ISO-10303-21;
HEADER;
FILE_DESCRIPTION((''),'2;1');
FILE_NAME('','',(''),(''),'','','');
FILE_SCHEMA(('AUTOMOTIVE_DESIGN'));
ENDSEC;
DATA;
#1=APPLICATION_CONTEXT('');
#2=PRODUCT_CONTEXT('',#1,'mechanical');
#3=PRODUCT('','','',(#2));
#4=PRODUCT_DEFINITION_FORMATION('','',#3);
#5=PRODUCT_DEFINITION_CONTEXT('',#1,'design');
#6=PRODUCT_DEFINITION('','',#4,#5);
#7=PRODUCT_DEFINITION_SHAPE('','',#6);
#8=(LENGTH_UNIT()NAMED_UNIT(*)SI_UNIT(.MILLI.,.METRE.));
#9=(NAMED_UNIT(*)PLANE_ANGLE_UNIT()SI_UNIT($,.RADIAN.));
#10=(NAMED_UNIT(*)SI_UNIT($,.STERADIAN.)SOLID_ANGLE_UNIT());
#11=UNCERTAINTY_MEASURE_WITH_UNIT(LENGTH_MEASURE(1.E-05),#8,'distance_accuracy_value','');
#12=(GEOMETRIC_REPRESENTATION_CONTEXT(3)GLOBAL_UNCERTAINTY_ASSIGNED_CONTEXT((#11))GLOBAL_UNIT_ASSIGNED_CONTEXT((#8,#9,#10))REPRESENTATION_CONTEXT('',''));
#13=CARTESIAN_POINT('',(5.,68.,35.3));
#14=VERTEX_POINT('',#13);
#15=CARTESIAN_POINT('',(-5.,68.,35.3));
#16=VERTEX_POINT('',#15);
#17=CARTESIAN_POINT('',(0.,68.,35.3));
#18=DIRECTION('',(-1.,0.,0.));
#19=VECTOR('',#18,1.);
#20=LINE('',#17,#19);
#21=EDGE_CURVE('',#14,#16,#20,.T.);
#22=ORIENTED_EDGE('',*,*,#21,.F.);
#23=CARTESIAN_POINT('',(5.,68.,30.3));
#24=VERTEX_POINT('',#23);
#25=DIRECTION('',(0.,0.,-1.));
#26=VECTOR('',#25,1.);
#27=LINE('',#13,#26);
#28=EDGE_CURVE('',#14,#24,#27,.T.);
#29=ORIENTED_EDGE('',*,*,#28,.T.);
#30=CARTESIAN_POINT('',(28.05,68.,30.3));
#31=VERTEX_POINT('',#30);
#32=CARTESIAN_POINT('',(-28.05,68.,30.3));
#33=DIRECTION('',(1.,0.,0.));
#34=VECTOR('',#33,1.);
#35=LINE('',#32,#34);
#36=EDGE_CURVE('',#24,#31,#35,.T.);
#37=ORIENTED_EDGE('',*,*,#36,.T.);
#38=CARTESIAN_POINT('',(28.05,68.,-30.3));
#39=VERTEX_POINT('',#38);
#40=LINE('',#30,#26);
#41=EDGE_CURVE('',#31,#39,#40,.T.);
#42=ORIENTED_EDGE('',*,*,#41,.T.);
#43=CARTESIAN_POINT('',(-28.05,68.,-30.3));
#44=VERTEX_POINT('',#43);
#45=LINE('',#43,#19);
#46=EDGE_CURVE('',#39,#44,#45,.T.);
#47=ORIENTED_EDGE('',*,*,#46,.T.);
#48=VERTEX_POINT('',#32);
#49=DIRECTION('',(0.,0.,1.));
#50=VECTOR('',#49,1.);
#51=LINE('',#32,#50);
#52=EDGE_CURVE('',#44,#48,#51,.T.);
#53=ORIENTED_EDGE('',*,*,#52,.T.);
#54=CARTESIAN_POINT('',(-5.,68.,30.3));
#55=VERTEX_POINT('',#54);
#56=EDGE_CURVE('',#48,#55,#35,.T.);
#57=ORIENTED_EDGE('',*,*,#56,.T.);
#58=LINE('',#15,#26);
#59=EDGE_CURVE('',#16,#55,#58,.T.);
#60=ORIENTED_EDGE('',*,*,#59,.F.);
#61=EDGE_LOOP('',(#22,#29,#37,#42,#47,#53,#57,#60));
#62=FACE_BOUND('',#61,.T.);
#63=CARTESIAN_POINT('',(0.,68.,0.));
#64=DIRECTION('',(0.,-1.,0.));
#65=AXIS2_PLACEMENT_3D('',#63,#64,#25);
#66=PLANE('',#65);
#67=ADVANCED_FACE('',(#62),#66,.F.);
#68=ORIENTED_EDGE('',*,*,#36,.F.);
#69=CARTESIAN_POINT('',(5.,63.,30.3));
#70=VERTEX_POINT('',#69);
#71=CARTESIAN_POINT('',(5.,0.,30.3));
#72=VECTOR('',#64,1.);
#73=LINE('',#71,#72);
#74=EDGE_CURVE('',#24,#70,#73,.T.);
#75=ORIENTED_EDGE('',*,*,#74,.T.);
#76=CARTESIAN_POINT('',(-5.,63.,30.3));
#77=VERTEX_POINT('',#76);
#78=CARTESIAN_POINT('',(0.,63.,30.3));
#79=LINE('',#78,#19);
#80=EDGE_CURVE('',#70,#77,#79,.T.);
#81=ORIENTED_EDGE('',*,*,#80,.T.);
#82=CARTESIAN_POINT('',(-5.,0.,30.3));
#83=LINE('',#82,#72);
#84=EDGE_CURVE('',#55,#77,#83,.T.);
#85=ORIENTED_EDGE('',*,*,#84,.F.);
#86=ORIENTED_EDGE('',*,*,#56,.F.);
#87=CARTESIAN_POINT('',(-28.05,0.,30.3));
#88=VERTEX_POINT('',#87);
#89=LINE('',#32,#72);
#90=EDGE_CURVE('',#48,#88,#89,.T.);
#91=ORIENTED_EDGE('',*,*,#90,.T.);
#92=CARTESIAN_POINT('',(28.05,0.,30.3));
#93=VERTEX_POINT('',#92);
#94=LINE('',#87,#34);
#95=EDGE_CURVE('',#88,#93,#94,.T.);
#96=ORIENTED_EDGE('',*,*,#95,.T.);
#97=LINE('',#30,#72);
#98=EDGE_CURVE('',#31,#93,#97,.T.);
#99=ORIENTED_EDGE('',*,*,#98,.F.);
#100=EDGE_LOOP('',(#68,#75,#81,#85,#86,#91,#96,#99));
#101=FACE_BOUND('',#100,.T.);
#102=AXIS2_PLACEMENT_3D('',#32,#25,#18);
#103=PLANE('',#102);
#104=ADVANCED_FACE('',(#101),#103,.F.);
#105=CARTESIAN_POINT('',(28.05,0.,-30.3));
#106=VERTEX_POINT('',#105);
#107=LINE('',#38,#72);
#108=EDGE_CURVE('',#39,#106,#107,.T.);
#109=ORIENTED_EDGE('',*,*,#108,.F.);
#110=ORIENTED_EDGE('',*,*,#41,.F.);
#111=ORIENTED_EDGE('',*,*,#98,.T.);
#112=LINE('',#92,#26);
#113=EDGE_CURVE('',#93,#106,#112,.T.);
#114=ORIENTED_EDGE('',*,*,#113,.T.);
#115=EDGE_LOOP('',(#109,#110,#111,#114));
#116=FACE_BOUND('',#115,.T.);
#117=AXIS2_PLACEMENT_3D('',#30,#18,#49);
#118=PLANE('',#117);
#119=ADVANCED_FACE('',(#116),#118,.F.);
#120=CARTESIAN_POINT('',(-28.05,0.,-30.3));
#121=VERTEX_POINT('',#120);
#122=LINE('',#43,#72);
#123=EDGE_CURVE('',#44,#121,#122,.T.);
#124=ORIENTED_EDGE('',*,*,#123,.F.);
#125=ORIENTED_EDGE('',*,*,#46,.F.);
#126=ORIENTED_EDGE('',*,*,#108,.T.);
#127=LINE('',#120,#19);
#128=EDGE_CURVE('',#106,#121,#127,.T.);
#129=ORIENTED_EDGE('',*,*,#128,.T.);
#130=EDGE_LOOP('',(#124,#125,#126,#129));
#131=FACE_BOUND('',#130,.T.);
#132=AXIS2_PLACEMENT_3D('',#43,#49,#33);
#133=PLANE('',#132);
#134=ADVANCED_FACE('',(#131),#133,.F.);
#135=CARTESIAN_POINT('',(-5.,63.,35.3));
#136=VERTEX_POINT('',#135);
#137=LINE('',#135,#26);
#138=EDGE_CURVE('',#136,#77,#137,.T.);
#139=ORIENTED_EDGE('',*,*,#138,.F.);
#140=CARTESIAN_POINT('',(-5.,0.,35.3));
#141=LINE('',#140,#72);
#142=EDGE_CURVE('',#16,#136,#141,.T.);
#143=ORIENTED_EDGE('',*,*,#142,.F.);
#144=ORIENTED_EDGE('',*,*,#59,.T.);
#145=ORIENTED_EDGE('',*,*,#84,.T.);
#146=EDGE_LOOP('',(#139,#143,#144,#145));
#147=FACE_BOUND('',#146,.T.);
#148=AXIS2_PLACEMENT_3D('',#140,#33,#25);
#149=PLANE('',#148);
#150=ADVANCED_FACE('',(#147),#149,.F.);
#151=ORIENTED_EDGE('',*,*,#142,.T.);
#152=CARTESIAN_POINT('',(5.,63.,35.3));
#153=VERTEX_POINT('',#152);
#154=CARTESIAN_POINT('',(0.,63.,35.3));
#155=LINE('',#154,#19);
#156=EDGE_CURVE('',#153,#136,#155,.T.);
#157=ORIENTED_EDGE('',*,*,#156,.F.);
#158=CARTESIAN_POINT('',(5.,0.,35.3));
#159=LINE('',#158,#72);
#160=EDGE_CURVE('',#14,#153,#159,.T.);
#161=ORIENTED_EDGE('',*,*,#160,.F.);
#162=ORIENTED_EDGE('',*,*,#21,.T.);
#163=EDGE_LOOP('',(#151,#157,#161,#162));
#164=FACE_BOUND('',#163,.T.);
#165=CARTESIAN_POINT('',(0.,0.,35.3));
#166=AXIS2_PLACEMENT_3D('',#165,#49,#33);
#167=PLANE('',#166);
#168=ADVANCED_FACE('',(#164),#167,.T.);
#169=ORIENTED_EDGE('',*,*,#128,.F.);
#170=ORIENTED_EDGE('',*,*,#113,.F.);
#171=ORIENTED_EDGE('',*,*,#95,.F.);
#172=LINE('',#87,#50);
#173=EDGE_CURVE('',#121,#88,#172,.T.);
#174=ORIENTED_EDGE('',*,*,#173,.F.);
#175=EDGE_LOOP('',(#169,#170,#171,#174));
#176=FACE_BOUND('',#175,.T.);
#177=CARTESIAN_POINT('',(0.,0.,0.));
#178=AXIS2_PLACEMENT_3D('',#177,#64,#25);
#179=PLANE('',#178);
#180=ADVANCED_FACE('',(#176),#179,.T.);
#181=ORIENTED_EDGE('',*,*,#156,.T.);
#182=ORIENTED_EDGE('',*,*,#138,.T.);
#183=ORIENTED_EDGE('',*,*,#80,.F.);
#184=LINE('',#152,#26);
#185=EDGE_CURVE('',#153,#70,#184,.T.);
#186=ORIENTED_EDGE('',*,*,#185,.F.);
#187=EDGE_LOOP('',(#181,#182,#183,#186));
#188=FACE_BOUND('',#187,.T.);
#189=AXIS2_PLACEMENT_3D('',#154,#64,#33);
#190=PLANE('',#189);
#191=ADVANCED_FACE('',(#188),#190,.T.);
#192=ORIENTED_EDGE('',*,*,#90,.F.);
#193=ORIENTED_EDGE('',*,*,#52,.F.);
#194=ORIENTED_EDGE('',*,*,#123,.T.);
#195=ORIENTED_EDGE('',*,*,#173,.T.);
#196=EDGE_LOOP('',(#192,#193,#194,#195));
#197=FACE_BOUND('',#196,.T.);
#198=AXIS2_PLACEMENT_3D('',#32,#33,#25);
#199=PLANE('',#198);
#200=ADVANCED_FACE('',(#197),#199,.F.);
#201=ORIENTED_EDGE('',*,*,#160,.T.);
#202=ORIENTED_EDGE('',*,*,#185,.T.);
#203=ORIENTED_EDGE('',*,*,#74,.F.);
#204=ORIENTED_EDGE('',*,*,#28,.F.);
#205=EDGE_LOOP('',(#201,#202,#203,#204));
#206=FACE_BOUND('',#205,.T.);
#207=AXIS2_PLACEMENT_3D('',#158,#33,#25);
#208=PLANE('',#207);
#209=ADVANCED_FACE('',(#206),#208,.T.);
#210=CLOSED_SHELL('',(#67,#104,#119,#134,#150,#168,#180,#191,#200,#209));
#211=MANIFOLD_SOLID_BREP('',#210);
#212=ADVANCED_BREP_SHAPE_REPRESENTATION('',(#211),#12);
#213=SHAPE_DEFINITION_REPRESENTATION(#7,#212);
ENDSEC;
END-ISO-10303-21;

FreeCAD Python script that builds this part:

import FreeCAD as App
import Part
import Sketcher

V = App.Vector


def add_polygon(sketch, points):
    """Adds a closed chain of lines whose ends are joined by coincident constraints."""
    first, n = sketch.GeometryCount, len(points)
    for a, b in zip(points, points[1:] + points[:1]):
        sketch.addGeometry(Part.LineSegment(App.Vector(*a, 0), App.Vector(*b, 0)), False)
    for i in range(n):
        sketch.addConstraint(Sketcher.Constraint("Coincident", first + i, 2, first + (i + 1) % n, 1))

doc = App.newDocument("Part")
body = doc.addObject("PartDesign::Body", "Body")

# Sketch on XZ plane
sketch1 = body.newObject("Sketcher::SketchObject", "Sketch")
sketch1.AttachmentSupport = (doc.getObject("XZ_Plane"), [""])
sketch1.MapMode = "FlatFace"
add_polygon(sketch1, [(-28.05, -30.3), (-28.05, 30.3), (28.05, 30.3), (28.05, -30.3)])  # lines 0-3
sketch1.addConstraint([
    Sketcher.Constraint("Vertical", 0),
    Sketcher.Constraint("Horizontal", 1),
    Sketcher.Constraint("Vertical", 2),
    Sketcher.Constraint("Horizontal", 3),
    Sketcher.Constraint("Symmetric", 0, 2, 2, 2, -1, 1),
    Sketcher.Constraint("DistanceX", 1, 1, 1, 2, 56.1),
    Sketcher.Constraint("DistanceY", 0, 1, 0, 2, 60.6),
])
pad1 = body.newObject("PartDesign::Pad", "Pad")
pad1.Profile = sketch1
pad1.Length = 68
pad1.Reversed = True

# Sketch on XY plane
sketch2 = body.newObject("Sketcher::SketchObject", "Sketch001")
sketch2.AttachmentSupport = (doc.getObject("XY_Plane"), [""])
sketch2.MapMode = "FlatFace"
sketch2.AttachmentOffset = App.Placement(V(0, 0, 30.3), App.Rotation())
add_polygon(sketch2, [(-5, 68), (-5, 63), (5, 63), (5, 68)])  # lines 0-3
sketch2.addConstraint([
    Sketcher.Constraint("Vertical", 0),
    Sketcher.Constraint("Horizontal", 1),
    Sketcher.Constraint("Vertical", 2),
    Sketcher.Constraint("Horizontal", 3),
    Sketcher.Constraint("DistanceX", 1, 1, 1, 2, 10.0),
    Sketcher.Constraint("DistanceY", 0, 2, 0, 1, 5.0),
    Sketcher.Constraint("DistanceX", 0, 2, -1, 1, 5.0),
    Sketcher.Constraint("DistanceY", -1, 1, 0, 2, 63.0),
])
pad2 = body.newObject("PartDesign::Pad", "Pad001")
pad2.Profile = sketch2
pad2.Length = 5

doc.recompute()
